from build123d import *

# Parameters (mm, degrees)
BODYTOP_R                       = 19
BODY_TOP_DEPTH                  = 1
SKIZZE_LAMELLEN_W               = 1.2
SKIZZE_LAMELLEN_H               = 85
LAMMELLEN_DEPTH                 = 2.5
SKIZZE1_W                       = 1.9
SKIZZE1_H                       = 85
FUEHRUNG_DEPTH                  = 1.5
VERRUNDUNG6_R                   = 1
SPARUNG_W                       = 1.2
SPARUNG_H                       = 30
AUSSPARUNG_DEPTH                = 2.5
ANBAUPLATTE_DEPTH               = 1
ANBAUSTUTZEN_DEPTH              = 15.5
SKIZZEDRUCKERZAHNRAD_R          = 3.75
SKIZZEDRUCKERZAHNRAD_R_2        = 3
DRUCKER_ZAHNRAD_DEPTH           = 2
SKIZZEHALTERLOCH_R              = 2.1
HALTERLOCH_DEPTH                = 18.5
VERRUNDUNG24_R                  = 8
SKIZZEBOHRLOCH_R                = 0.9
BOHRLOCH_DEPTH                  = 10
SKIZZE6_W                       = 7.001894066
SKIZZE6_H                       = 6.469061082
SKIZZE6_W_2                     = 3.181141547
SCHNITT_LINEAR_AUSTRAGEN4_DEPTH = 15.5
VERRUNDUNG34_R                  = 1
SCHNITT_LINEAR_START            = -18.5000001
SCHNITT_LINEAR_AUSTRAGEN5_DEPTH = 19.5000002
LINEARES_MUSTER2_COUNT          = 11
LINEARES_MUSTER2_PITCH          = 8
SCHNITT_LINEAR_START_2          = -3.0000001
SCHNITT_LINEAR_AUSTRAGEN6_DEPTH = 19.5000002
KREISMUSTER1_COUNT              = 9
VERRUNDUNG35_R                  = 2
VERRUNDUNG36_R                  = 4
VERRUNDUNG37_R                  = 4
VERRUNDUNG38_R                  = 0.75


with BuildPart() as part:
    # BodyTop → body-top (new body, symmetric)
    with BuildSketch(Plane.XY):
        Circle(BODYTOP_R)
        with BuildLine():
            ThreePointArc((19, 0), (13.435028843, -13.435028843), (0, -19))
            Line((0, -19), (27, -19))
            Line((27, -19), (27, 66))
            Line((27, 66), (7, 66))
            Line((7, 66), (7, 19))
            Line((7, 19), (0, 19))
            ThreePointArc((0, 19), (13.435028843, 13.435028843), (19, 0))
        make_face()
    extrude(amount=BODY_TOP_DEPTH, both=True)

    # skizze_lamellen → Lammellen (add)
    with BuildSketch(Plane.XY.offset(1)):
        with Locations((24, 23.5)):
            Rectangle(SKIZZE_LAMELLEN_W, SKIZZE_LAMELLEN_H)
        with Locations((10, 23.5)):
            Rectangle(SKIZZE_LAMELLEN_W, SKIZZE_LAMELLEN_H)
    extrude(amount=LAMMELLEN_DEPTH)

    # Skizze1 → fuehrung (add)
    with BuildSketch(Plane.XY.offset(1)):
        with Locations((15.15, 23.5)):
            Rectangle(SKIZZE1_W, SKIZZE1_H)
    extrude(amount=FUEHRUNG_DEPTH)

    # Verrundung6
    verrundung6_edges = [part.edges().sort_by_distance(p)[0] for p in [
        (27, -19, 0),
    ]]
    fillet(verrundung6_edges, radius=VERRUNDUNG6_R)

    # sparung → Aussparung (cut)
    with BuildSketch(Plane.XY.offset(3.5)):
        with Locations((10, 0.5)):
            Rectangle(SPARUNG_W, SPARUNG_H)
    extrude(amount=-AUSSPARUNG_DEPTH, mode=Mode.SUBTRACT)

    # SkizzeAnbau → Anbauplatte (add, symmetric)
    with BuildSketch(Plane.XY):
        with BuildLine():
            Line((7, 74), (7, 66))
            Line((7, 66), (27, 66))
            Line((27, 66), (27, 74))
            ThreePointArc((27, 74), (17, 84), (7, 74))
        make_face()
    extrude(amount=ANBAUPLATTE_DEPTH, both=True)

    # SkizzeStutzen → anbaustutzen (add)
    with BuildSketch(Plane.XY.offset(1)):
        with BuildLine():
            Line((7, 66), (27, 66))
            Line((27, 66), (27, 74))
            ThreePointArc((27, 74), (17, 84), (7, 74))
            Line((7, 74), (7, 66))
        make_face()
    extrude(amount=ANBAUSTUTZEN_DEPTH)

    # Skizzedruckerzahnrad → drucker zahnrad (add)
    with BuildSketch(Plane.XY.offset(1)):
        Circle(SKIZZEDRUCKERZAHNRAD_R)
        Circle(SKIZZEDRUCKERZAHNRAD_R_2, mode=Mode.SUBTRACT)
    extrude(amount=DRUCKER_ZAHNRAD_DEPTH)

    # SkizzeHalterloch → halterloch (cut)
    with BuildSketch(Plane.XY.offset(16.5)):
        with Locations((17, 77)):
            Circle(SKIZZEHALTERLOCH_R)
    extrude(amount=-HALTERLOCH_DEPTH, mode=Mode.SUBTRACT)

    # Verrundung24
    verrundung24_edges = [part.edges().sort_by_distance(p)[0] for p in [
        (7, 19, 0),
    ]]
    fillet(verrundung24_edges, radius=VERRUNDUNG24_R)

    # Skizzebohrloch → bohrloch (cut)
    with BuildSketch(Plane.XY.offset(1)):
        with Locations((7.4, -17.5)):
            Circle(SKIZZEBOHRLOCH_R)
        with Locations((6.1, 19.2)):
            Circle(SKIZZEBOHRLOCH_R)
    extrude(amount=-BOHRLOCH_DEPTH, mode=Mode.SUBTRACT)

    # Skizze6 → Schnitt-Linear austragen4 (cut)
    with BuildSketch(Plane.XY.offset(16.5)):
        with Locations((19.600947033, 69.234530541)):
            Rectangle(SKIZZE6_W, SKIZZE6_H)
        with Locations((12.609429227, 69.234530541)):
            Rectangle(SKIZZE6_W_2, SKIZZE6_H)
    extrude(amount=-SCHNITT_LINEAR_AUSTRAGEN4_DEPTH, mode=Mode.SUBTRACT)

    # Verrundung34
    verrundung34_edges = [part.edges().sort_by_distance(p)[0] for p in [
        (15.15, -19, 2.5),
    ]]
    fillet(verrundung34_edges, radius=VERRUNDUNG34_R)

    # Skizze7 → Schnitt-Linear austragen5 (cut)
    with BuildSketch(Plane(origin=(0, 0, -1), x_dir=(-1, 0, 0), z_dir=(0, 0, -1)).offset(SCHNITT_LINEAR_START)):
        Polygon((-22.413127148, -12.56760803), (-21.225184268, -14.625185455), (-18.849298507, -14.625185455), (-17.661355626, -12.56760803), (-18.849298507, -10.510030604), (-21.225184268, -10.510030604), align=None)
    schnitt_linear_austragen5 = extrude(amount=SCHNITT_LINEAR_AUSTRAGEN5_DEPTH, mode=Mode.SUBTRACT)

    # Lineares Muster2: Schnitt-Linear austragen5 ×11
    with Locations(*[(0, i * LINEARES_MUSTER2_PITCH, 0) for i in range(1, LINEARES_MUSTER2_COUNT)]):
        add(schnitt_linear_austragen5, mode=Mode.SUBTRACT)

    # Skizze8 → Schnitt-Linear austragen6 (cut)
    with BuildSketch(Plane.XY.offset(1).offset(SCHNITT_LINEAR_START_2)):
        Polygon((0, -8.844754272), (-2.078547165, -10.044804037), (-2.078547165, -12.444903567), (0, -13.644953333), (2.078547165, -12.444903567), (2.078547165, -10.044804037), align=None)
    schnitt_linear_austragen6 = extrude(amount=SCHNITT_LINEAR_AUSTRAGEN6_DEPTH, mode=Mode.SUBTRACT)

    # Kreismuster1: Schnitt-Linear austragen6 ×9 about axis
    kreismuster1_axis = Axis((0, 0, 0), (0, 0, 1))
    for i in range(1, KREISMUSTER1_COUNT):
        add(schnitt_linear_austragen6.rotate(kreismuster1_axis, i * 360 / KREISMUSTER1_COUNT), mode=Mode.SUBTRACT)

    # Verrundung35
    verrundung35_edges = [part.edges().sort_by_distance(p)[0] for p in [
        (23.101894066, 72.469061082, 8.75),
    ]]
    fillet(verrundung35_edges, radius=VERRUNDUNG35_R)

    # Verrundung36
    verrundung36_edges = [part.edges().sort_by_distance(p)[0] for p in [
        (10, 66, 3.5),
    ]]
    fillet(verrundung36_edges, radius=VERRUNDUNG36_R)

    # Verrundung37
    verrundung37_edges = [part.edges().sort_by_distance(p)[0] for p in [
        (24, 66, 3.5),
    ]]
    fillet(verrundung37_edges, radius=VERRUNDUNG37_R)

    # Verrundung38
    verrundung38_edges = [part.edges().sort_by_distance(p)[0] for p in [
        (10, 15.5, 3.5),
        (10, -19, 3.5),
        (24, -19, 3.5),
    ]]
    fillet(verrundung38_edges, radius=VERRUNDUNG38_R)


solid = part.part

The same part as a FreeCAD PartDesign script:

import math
import FreeCAD as App
import Part
import Sketcher

V = App.Vector
Q = App.Units.Quantity


def edges_at(feature, points):
    """Names of the edges that pass closest to the given points."""
    edges = feature.Shape.Edges
    near = lambda p: min(range(len(edges)), key=lambda i: edges[i].distToShape(Part.Vertex(*p))[0])
    return sorted({f"Edge{near(p) + 1}" for p in points})


def add_polygon(sketch, points):
    """Adds a closed chain of lines whose ends are joined by coincident constraints."""
    first, n = sketch.GeometryCount, len(points)
    for a, b in zip(points, points[1:] + points[:1]):
        sketch.addGeometry(Part.LineSegment(App.Vector(*a, 0), App.Vector(*b, 0)), False)
    for i in range(n):
        sketch.addConstraint(Sketcher.Constraint("Coincident", first + i, 2, first + (i + 1) % n, 1))

doc = App.newDocument("Part")
body = doc.addObject("PartDesign::Body", "Body")

sketch1 = body.newObject("Sketcher::SketchObject", "Sketch")
sketch1.AttachmentSupport = (doc.getObject("XY_Plane"), [""])
sketch1.MapMode = "FlatFace"
sketch1.addGeometry(Part.ArcOfCircle(Part.Circle(V(0, 0, 0), V(0, 0, 1), 19), math.radians(90), math.radians(270)), False)
sketch1.addGeometry(Part.LineSegment(V(0, -19, 0), V(27, -19, 0)), False)
sketch1.addGeometry(Part.LineSegment(V(27, -19, 0), V(27, 66, 0)), False)
sketch1.addGeometry(Part.LineSegment(V(27, 66, 0), V(7, 66, 0)), False)
sketch1.addGeometry(Part.LineSegment(V(7, 66, 0), V(7, 19, 0)), False)
sketch1.addGeometry(Part.LineSegment(V(7, 19, 0), V(0, 19, 0)), False)
sketch1.addConstraint(Sketcher.Constraint("Tangent", 0, 2, 1, 1))
sketch1.addConstraint(Sketcher.Constraint("Coincident", 1, 2, 2, 1))
sketch1.addConstraint(Sketcher.Constraint("Coincident", 2, 2, 3, 1))
sketch1.addConstraint(Sketcher.Constraint("Coincident", 3, 2, 4, 1))
sketch1.addConstraint(Sketcher.Constraint("Coincident", 4, 2, 5, 1))
sketch1.addConstraint(Sketcher.Constraint("Tangent", 5, 2, 0, 1))
sketch1.addConstraint(Sketcher.Constraint("Horizontal", 1))
sketch1.addConstraint(Sketcher.Constraint("Vertical", 2))
sketch1.addConstraint(Sketcher.Constraint("Horizontal", 3))
sketch1.addConstraint(Sketcher.Constraint("Vertical", 4))
sketch1.addConstraint(Sketcher.Constraint("Horizontal", 5))
sketch1.addConstraint(Sketcher.Constraint("Coincident", 0, 3, -1, 1))
sketch1.addConstraint(Sketcher.Constraint("Radius", 0, 19.0))
sketch1.addConstraint(Sketcher.Constraint("DistanceX", 1, 1, 1, 2, 27.0))
sketch1.addConstraint(Sketcher.Constraint("DistanceX", 3, 2, 3, 1, 20.0))
sketch1.addConstraint(Sketcher.Constraint("DistanceY", 2, 1, 2, 2, 85.0))
pad1 = body.newObject("PartDesign::Pad", "Pad")
pad1.Profile = sketch1
pad1.Length = 2
pad1.Midplane = True

sketch2 = body.newObject("Sketcher::SketchObject", "Sketch001")
sketch2.AttachmentSupport = (doc.getObject("XY_Plane"), [""])
sketch2.MapMode = "FlatFace"
sketch2.AttachmentOffset = App.Placement(V(0, 0, 1), App.Rotation())
add_polygon(sketch2, [(23.4, 66), (23.4, -19), (24.6, -19), (24.6, 66)])
add_polygon(sketch2, [(9.4, 66), (9.4, -19), (10.6, -19), (10.6, 66)])
sketch2.addConstraint(Sketcher.Constraint("Vertical", 0))
sketch2.addConstraint(Sketcher.Constraint("Horizontal", 1))
sketch2.addConstraint(Sketcher.Constraint("Vertical", 2))
sketch2.addConstraint(Sketcher.Constraint("Horizontal", 3))
sketch2.addConstraint(Sketcher.Constraint("Vertical", 4))
sketch2.addConstraint(Sketcher.Constraint("Horizontal", 5))
sketch2.addConstraint(Sketcher.Constraint("Vertical", 6))
sketch2.addConstraint(Sketcher.Constraint("Horizontal", 7))
sketch2.addConstraint(Sketcher.Constraint("Horizontal", 1, 2, 4, 2))
sketch2.addConstraint(Sketcher.Constraint("Horizontal", 3, 2, 6, 2))
sketch2.addConstraint(Sketcher.Constraint("Equal", 3, 5))
sketch2.addConstraint(Sketcher.Constraint("DistanceY", 0, 2, 0, 1, 85.0))
sketch2.addConstraint(Sketcher.Constraint("DistanceX", 1, 1, 1, 2, 1.2))
sketch2.addConstraint(Sketcher.Constraint("DistanceY", 0, 2, -1, 1, 19.0))
sketch2.addConstraint(Sketcher.Constraint("DistanceX", 4, 2, 0, 2, 14.0))
sketch2.addConstraint(Sketcher.Constraint("DistanceX", -1, 1, 0, 2, 23.4))
pad2 = body.newObject("PartDesign::Pad", "Pad001")
pad2.Profile = sketch2
pad2.Length = 2.5

sketch3 = body.newObject("Sketcher::SketchObject", "Sketch002")
sketch3.AttachmentSupport = (doc.getObject("XY_Plane"), [""])
sketch3.MapMode = "FlatFace"
sketch3.AttachmentOffset = App.Placement(V(0, 0, 1), App.Rotation())
add_polygon(sketch3, [(14.2, 66), (14.2, -19), (16.1, -19), (16.1, 66)])
sketch3.addConstraint(Sketcher.Constraint("Vertical", 0))
sketch3.addConstraint(Sketcher.Constraint("Horizontal", 1))
sketch3.addConstraint(Sketcher.Constraint("Vertical", 2))
sketch3.addConstraint(Sketcher.Constraint("Horizontal", 3))
sketch3.addConstraint(Sketcher.Constraint("DistanceY", 0, 2, 0, 1, 85.0))
sketch3.addConstraint(Sketcher.Constraint("DistanceX", 1, 1, 1, 2, 1.9))
sketch3.addConstraint(Sketcher.Constraint("DistanceY", 0, 2, -1, 1, 19.0))
sketch3.addConstraint(Sketcher.Constraint("DistanceX", -1, 1, 0, 2, 14.2))
pad3 = body.newObject("PartDesign::Pad", "Pad002")
pad3.Profile = sketch3
pad3.Length = 1.5
doc.recompute()

fillet = body.newObject("PartDesign::Fillet", "Fillet")
fillet.Base = (pad3, edges_at(pad3, [(27, -19, 0)]))
fillet.Radius = 1

sketch4 = body.newObject("Sketcher::SketchObject", "Sketch003")
sketch4.AttachmentSupport = (doc.getObject("XY_Plane"), [""])
sketch4.MapMode = "FlatFace"
sketch4.AttachmentOffset = App.Placement(V(0, 0, 3.5), App.Rotation())
add_polygon(sketch4, [(9.4, 15.5), (9.4, -14.5), (10.6, -14.5), (10.6, 15.5)])
sketch4.addConstraint(Sketcher.Constraint("Vertical", 0))
sketch4.addConstraint(Sketcher.Constraint("Horizontal", 1))
sketch4.addConstraint(Sketcher.Constraint("Vertical", 2))
sketch4.addConstraint(Sketcher.Constraint("Horizontal", 3))
sketch4.addConstraint(Sketcher.Constraint("DistanceY", 0, 2, 0, 1, 30.0))
sketch4.addConstraint(Sketcher.Constraint("DistanceX", 1, 1, 1, 2, 1.2))
sketch4.addConstraint(Sketcher.Constraint("DistanceX", -1, 1, 0, 2, 9.4))
sketch4.addConstraint(Sketcher.Constraint("DistanceY", 0, 2, -1, 1, 14.5))
pocket1 = body.newObject("PartDesign::Pocket", "Pocket")
pocket1.Profile = sketch4
pocket1.Length = 2.5

sketch5 = body.newObject("Sketcher::SketchObject", "Sketch004")
sketch5.AttachmentSupport = (doc.getObject("XY_Plane"), [""])
sketch5.MapMode = "FlatFace"
sketch5.addGeometry(Part.LineSegment(V(7, 74, 0), V(7, 66, 0)), False)
sketch5.addGeometry(Part.LineSegment(V(7, 66, 0), V(27, 66, 0)), False)
sketch5.addGeometry(Part.LineSegment(V(27, 66, 0), V(27, 74, 0)), False)
sketch5.addGeometry(Part.ArcOfCircle(Part.Circle(V(17, 74, 0), V(0, 0, 1), 10), math.radians(0), math.radians(180)), False)
sketch5.addConstraint(Sketcher.Constraint("Coincident", 0, 2, 1, 1))
sketch5.addConstraint(Sketcher.Constraint("Coincident", 1, 2, 2, 1))
sketch5.addConstraint(Sketcher.Constraint("Tangent", 2, 2, 3, 1))
sketch5.addConstraint(Sketcher.Constraint("Tangent", 3, 2, 0, 1))
sketch5.addConstraint(Sketcher.Constraint("Vertical", 0))
sketch5.addConstraint(Sketcher.Constraint("Horizontal", 1))
sketch5.addConstraint(Sketcher.Constraint("Vertical", 2))
sketch5.addConstraint(Sketcher.Constraint("Radius", 3, 10.0))
sketch5.addConstraint(Sketcher.Constraint("DistanceY", 0, 2, 0, 1, 8.0))
sketch5.addConstraint(Sketcher.Constraint("DistanceX", -1, 1, 3, 3, 17.0))
sketch5.addConstraint(Sketcher.Constraint("DistanceY", -1, 1, 3, 3, 74.0))
pad4 = body.newObject("PartDesign::Pad", "Pad003")
pad4.Profile = sketch5
pad4.Length = 2
pad4.Midplane = True

sketch6 = body.newObject("Sketcher::SketchObject", "Sketch005")
sketch6.AttachmentSupport = (doc.getObject("XY_Plane"), [""])
sketch6.MapMode = "FlatFace"
sketch6.AttachmentOffset = App.Placement(V(0, 0, 1), App.Rotation())
sketch6.addGeometry(Part.LineSegment(V(7, 66, 0), V(27, 66, 0)), False)
sketch6.addGeometry(Part.LineSegment(V(27, 66, 0), V(27, 74, 0)), False)
sketch6.addGeometry(Part.ArcOfCircle(Part.Circle(V(17, 74, 0), V(0, 0, 1), 10), math.radians(0), math.radians(180)), False)
sketch6.addGeometry(Part.LineSegment(V(7, 74, 0), V(7, 66, 0)), False)
sketch6.addConstraint(Sketcher.Constraint("Coincident", 0, 2, 1, 1))
sketch6.addConstraint(Sketcher.Constraint("Tangent", 1, 2, 2, 1))
sketch6.addConstraint(Sketcher.Constraint("Tangent", 2, 2, 3, 1))
sketch6.addConstraint(Sketcher.Constraint("Coincident", 3, 2, 0, 1))
sketch6.addConstraint(Sketcher.Constraint("Horizontal", 0))
sketch6.addConstraint(Sketcher.Constraint("Vertical", 1))
sketch6.addConstraint(Sketcher.Constraint("Vertical", 3))
sketch6.addConstraint(Sketcher.Constraint("Radius", 2, 10.0))
sketch6.addConstraint(Sketcher.Constraint("DistanceY", 1, 1, 1, 2, 8.0))
sketch6.addConstraint(Sketcher.Constraint("DistanceX", -1, 1, 2, 3, 17.0))
sketch6.addConstraint(Sketcher.Constraint("DistanceY", -1, 1, 2, 3, 74.0))
pad5 = body.newObject("PartDesign::Pad", "Pad004")
pad5.Profile = sketch6
pad5.Length = 15.5

sketch7 = body.newObject("Sketcher::SketchObject", "Sketch006")
sketch7.AttachmentSupport = (doc.getObject("XY_Plane"), [""])
sketch7.MapMode = "FlatFace"
sketch7.AttachmentOffset = App.Placement(V(0, 0, 1), App.Rotation())
sketch7.addGeometry(Part.Circle(V(0, 0, 0), V(0, 0, 1), 3.8), False)
sketch7.addGeometry(Part.Circle(V(0, 0, 0), V(0, 0, 1), 3), False)
sketch7.addConstraint(Sketcher.Constraint("Coincident", 0, 3, -1, 1))
sketch7.addConstraint(Sketcher.Constraint("Coincident", 1, 3, -1, 1))
sketch7.addConstraint(Sketcher.Constraint("Diameter", 1, 6.0))
sketch7.addConstraint(Sketcher.Constraint("Diameter", 0, 7.5))
pad6 = body.newObject("PartDesign::Pad", "Pad005")
pad6.Profile = sketch7
pad6.Length = 2

sketch8 = body.newObject("Sketcher::SketchObject", "Sketch007")
sketch8.AttachmentSupport = (doc.getObject("XY_Plane"), [""])
sketch8.MapMode = "FlatFace"
sketch8.AttachmentOffset = App.Placement(V(0, 0, 16.5), App.Rotation())
sketch8.addGeometry(Part.Circle(V(17, 77, 0), V(0, 0, 1), 2.1), False)
sketch8.addConstraint(Sketcher.Constraint("Diameter", 0, 4.2))
sketch8.addConstraint(Sketcher.Constraint("DistanceX", -1, 1, 0, 3, 17.0))
sketch8.addConstraint(Sketcher.Constraint("DistanceY", -1, 1, 0, 3, 77.0))
pocket2 = body.newObject("PartDesign::Pocket", "Pocket001")
pocket2.Profile = sketch8
pocket2.Length = 18.5
doc.recompute()

fillet2 = body.newObject("PartDesign::Fillet", "Fillet001")
fillet2.Base = (pocket2, edges_at(pocket2, [(7, 19, 0)]))
fillet2.Radius = 8

sketch9 = body.newObject("Sketcher::SketchObject", "Sketch008")
sketch9.AttachmentSupport = (doc.getObject("XY_Plane"), [""])
sketch9.MapMode = "FlatFace"
sketch9.AttachmentOffset = App.Placement(V(0, 0, 1), App.Rotation())
sketch9.addGeometry(Part.Circle(V(7.4, -17.5, 0), V(0, 0, 1), 0.9), False)
sketch9.addGeometry(Part.Circle(V(6.1, 19.2, 0), V(0, 0, 1), 0.9), False)
sketch9.addConstraint(Sketcher.Constraint("Equal", 0, 1))
sketch9.addConstraint(Sketcher.Constraint("Diameter", 0, 1.8))
sketch9.addConstraint(Sketcher.Constraint("DistanceX", -1, 1, 0, 3, 7.4))
sketch9.addConstraint(Sketcher.Constraint("DistanceY", 0, 3, -1, 1, 17.5))
sketch9.addConstraint(Sketcher.Constraint("DistanceX", -1, 1, 1, 3, 6.1))
sketch9.addConstraint(Sketcher.Constraint("DistanceY", -1, 1, 1, 3, 19.2))
pocket3 = body.newObject("PartDesign::Pocket", "Pocket002")
pocket3.Profile = sketch9
pocket3.Length = 10

sketch10 = body.newObject("Sketcher::SketchObject", "Sketch009")
sketch10.AttachmentSupport = (doc.getObject("XY_Plane"), [""])
sketch10.MapMode = "FlatFace"
sketch10.AttachmentOffset = App.Placement(V(0, 0, 16.5), App.Rotation())
add_polygon(sketch10, [(16.1, 72.5), (16.1, 66), (23.1, 66), (23.1, 72.5)])
add_polygon(sketch10, [(11, 72.5), (11, 66), (14.2, 66), (14.2, 72.5)])
sketch10.addConstraint(Sketcher.Constraint("Vertical", 0))
sketch10.addConstraint(Sketcher.Constraint("Horizontal", 1))
sketch10.addConstraint(Sketcher.Constraint("Vertical", 2))
sketch10.addConstraint(Sketcher.Constraint("Horizontal", 3))
sketch10.addConstraint(Sketcher.Constraint("Vertical", 4))
sketch10.addConstraint(Sketcher.Constraint("Horizontal", 5))
sketch10.addConstraint(Sketcher.Constraint("Vertical", 6))
sketch10.addConstraint(Sketcher.Constraint("Horizontal", 7))
sketch10.addConstraint(Sketcher.Constraint("Horizontal", 1, 2, 4, 2))
sketch10.addConstraint(Sketcher.Constraint("Horizontal", 3, 2, 6, 2))
sketch10.addConstraint(Sketcher.Constraint("DistanceY", -1, 1, 0, 2, 66.0))
sketch10.addConstraint(Sketcher.Constraint("DistanceX", -1, 1, 0, 2, 16.1))
sketch10.addConstraint(Sketcher.Constraint("DistanceX", -1, 1, 5, 2, 14.2))
sketch10.addConstraint(Sketcher.Constraint("DistanceX", 5, 1, 5, 2, 3.181142))
sketch10.addConstraint(Sketcher.Constraint("DistanceY", 0, 2, 0, 1, 6.469061))
sketch10.addConstraint(Sketcher.Constraint("DistanceX", 1, 1, 1, 2, 7.001894))
pocket4 = body.newObject("PartDesign::Pocket", "Pocket003")
pocket4.Profile = sketch10
pocket4.Length = 15.5
doc.recompute()

fillet3 = body.newObject("PartDesign::Fillet", "Fillet002")
fillet3.Base = (pocket4, edges_at(pocket4, [(15.15, -19, 2.5)]))
fillet3.Radius = 1

sketch11 = body.newObject("Sketcher::SketchObject", "Sketch010")
sketch11.AttachmentSupport = (doc.getObject("XY_Plane"), [""])
sketch11.MapMode = "FlatFace"
sketch11.AttachmentOffset = App.Placement(V(0, 0, 17.5), App.Rotation())
add_polygon(sketch11, [(22.4, -12.6), (21.2, -14.6), (18.8, -14.6), (17.7, -12.6), (18.8, -10.5), (21.2, -10.5)])
sketch11.addConstraint(Sketcher.Constraint("Horizontal", 1))
sketch11.addConstraint(Sketcher.Constraint("Horizontal", 4))
sketch11.addConstraint(Sketcher.Constraint("Parallel", 0, 3))
sketch11.addConstraint(Sketcher.Constraint("Parallel", 2, 5))
sketch11.addConstraint(Sketcher.Constraint("Horizontal", 2, 2, 5, 2))
sketch11.addConstraint(Sketcher.Constraint("Vertical", 1, 2, 3, 2))
sketch11.addConstraint(Sketcher.Constraint("Vertical", 0, 2, 4, 2))
sketch11.addConstraint(Sketcher.Constraint("Angle", 0, Q("-120 deg")))
sketch11.addConstraint(Sketcher.Constraint("DistanceX", -1, 1, 1, 2, 18.849299))
sketch11.addConstraint(Sketcher.Constraint("DistanceX", 1, 2, 1, 1, 2.375886))
sketch11.addConstraint(Sketcher.Constraint("DistanceY", 2, 2, -1, 1, 12.567608))
sketch11.addConstraint(Sketcher.Constraint("DistanceY", 3, 2, -1, 1, 10.510031))
pocket5 = body.newObject("PartDesign::Pocket", "Pocket004")
pocket5.Profile = sketch11
pocket5.Length = 19.5
doc.recompute()

linearpattern = body.newObject("PartDesign::LinearPattern", "LinearPattern")
linearpattern.Originals = [pocket5]
linearpattern.Direction = (doc.getObject("Y_Axis"), [""])
linearpattern.Mode = "offset"
linearpattern.Offset = 8
linearpattern.Occurrences = 11
body.Tip = linearpattern

sketch12 = body.newObject("Sketcher::SketchObject", "Sketch011")
sketch12.AttachmentSupport = (doc.getObject("XY_Plane"), [""])
sketch12.MapMode = "FlatFace"
sketch12.AttachmentOffset = App.Placement(V(0, 0, -2), App.Rotation())
add_polygon(sketch12, [(0, -8.8), (-2.1, -10), (-2.1, -12.4), (0, -13.6), (2.1, -12.4), (2.1, -10)])
sketch12.addConstraint(Sketcher.Constraint("Vertical", 1))
sketch12.addConstraint(Sketcher.Constraint("Vertical", 4))
sketch12.addConstraint(Sketcher.Constraint("Symmetric", 1, 2, 3, 2, -2))
sketch12.addConstraint(Sketcher.Constraint("PointOnObject", 2, 2, -2))
sketch12.addConstraint(Sketcher.Constraint("PointOnObject", 5, 2, -2))
sketch12.addConstraint(Sketcher.Constraint("Parallel", 0, 3))
sketch12.addConstraint(Sketcher.Constraint("Parallel", 2, 5))
sketch12.addConstraint(Sketcher.Constraint("Angle", 0, Q("-150 deg")))
sketch12.addConstraint(Sketcher.Constraint("DistanceY", 1, 2, 1, 1, 2.4001))
sketch12.addConstraint(Sketcher.Constraint("Distance", 0, 2.4001))
sketch12.addConstraint(Sketcher.Constraint("DistanceY", 0, 2, -1, 1, 10.044804))
pocket6 = body.newObject("PartDesign::Pocket", "Pocket005")
pocket6.Profile = sketch12
pocket6.Length = 19.5
pocket6.Reversed = True
doc.recompute()

polarpattern = body.newObject("PartDesign::PolarPattern", "PolarPattern")
polarpattern.Originals = [pocket6]
polarpattern.Axis = (doc.getObject("Z_Axis"), [""])
polarpattern.Angle = 360
polarpattern.Occurrences = 9
body.Tip = polarpattern
doc.recompute()

fillet4 = body.newObject("PartDesign::Fillet", "Fillet003")
fillet4.Base = (polarpattern, edges_at(polarpattern, [(23.102, 72.469, 8.75)]))
fillet4.Radius = 2
doc.recompute()

fillet5 = body.newObject("PartDesign::Fillet", "Fillet004")
fillet5.Base = (fillet4, edges_at(fillet4, [(10, 66, 3.5)]))
fillet5.Radius = 4
doc.recompute()

fillet6 = body.newObject("PartDesign::Fillet", "Fillet005")
fillet6.Base = (fillet5, edges_at(fillet5, [(24, 66, 3.5)]))
fillet6.Radius = 4
doc.recompute()

fillet7 = body.newObject("PartDesign::Fillet", "Fillet006")
fillet7.Base = (fillet6, edges_at(fillet6, [(10, 15.5, 3.5), (10, -19, 3.5), (24, -19, 3.5)]))
fillet7.Radius = 0.75

doc.recompute()
